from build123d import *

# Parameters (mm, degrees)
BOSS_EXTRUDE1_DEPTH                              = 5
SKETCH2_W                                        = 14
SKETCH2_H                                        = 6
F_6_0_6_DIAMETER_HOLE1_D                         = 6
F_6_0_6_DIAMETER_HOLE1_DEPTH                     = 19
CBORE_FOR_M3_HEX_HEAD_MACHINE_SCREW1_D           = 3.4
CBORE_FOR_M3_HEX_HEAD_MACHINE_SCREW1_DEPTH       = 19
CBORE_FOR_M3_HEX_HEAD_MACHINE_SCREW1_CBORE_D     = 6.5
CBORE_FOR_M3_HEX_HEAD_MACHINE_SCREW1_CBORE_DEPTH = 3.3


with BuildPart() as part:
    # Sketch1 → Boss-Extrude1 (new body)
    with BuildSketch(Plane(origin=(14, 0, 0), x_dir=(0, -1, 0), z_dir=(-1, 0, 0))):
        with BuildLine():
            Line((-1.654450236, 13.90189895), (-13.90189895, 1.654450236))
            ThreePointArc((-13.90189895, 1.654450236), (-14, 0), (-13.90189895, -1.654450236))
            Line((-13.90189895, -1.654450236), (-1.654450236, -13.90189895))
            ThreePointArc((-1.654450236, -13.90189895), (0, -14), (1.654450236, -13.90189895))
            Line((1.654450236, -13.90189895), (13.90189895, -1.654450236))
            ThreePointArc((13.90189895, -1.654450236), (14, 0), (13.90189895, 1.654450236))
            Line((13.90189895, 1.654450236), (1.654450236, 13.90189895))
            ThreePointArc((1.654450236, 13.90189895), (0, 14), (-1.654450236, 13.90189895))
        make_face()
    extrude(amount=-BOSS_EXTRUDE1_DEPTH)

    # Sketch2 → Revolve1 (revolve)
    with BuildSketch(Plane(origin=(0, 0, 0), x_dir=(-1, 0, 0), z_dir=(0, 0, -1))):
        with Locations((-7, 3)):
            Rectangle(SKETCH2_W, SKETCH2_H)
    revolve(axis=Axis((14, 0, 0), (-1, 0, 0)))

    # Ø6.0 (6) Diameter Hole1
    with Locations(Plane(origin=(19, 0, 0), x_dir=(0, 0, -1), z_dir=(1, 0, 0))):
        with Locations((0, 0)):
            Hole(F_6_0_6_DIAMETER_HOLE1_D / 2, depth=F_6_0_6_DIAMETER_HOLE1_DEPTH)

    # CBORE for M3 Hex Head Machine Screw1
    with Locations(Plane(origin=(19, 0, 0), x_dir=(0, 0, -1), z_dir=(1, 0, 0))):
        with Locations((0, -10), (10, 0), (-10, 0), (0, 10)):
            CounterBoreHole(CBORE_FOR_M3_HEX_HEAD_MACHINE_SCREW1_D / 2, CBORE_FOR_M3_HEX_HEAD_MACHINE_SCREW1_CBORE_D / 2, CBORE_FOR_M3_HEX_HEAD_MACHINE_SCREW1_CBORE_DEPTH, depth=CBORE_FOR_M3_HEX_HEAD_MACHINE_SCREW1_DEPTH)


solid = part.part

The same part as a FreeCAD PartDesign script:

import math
import FreeCAD as App
import Part
import Sketcher

V = App.Vector


def add_polygon(sketch, points):
    """Adds a closed chain of lines whose ends are joined by coincident constraints."""
    first, n = sketch.GeometryCount, len(points)
    for a, b in zip(points, points[1:] + points[:1]):
        sketch.addGeometry(Part.LineSegment(App.Vector(*a, 0), App.Vector(*b, 0)), False)
    for i in range(n):
        sketch.addConstraint(Sketcher.Constraint("Coincident", first + i, 2, first + (i + 1) % n, 1))

doc = App.newDocument("Part")
params = doc.addObject("Spreadsheet::Sheet", "Params")
for row, (alias, value) in enumerate([
    ("sketch1_radius", "14 mm"),
    ("pad1_length", "5 mm"),
    ("sketch2_width", "14 mm"),
    ("sketch2_height", "6 mm"),
    ("revolution_angle", "360 deg"),
    ("sketch3_diameter", "6 mm"),
    ("hole_diameter", "6 mm"),
    ("hole_depth", "19 mm"),
    ("sketch4_diameter", "3.4 mm"),
    ("hole2_diameter", "3.4 mm"),
    ("hole2_depth", "19 mm"),
    ("hole2_cbore_diameter", "6.5 mm"),
    ("hole2_cbore_depth", "3.3 mm"),
], start=1):
    params.set(f"A{row}", alias)
    params.set(f"B{row}", "=" + value)
    params.setAlias(f"B{row}", alias)

body = doc.addObject("PartDesign::Body", "Body")

sketch1 = body.newObject("Sketcher::SketchObject", "Sketch")
sketch1.AttachmentSupport = (doc.getObject("YZ_Plane"), [""])
sketch1.MapMode = "FlatFace"
sketch1.AttachmentOffset = App.Placement(V(0, 0, 14), App.Rotation())
sketch1.addGeometry(Part.LineSegment(V(1.7, 13.9, 0), V(13.9, 1.7, 0)), False)
sketch1.addGeometry(Part.ArcOfCircle(Part.Circle(V(0, 0, 0), V(0, 0, 1), 14), math.radians(-6.79), math.radians(6.79)), False)
sketch1.addGeometry(Part.LineSegment(V(13.9, -1.7, 0), V(1.7, -13.9, 0)), False)
sketch1.addGeometry(Part.ArcOfCircle(Part.Circle(V(0, 0, 0), V(0, 0, 1), 14), math.radians(-96.79), math.radians(-83.21)), False)
sketch1.addGeometry(Part.LineSegment(V(-1.7, -13.9, 0), V(-13.9, -1.7, 0)), False)
sketch1.addGeometry(Part.ArcOfCircle(Part.Circle(V(0, 0, 0), V(0, 0, 1), 14), math.radians(173.21), math.radians(186.79)), False)
sketch1.addGeometry(Part.LineSegment(V(-13.9, 1.7, 0), V(-1.7, 13.9, 0)), False)
sketch1.addGeometry(Part.ArcOfCircle(Part.Circle(V(0, 0, 0), V(0, 0, 1), 14), math.radians(83.21), math.radians(96.79)), False)
sketch1.addConstraint(Sketcher.Constraint("Coincident", 0, 2, 1, 2))
sketch1.addConstraint(Sketcher.Constraint("Coincident", 1, 1, 2, 1))
sketch1.addConstraint(Sketcher.Constraint("Coincident", 2, 2, 3, 2))
sketch1.addConstraint(Sketcher.Constraint("Coincident", 3, 1, 4, 1))
sketch1.addConstraint(Sketcher.Constraint("Coincident", 4, 2, 5, 2))
sketch1.addConstraint(Sketcher.Constraint("Coincident", 5, 1, 6, 1))
sketch1.addConstraint(Sketcher.Constraint("Coincident", 6, 2, 7, 2))
sketch1.addConstraint(Sketcher.Constraint("Coincident", 7, 1, 0, 1))
sketch1.addConstraint(Sketcher.Constraint("Coincident", 1, 3, -1, 1))
sketch1.addConstraint(Sketcher.Constraint("Coincident", 3, 3, -1, 1))
sketch1.addConstraint(Sketcher.Constraint("Coincident", 5, 3, -1, 1))
sketch1.addConstraint(Sketcher.Constraint("Coincident", 7, 3, -1, 1))
sketch1.addConstraint(Sketcher.Constraint("Equal", 1, 3))
sketch1.addConstraint(Sketcher.Constraint("Equal", 3, 5))
sketch1.addConstraint(Sketcher.Constraint("Equal", 5, 7))
sketch1.addConstraint(Sketcher.Constraint("Perpendicular", 0, 2))
sketch1.addConstraint(Sketcher.Constraint("Perpendicular", 2, 4))
sketch1.addConstraint(Sketcher.Constraint("Perpendicular", 4, 6))
sketch1.addConstraint(Sketcher.Constraint("Horizontal", 2, 2, 3, 1))
sketch1.addConstraint(Sketcher.Constraint("Horizontal", 1, 1, 4, 2))
sketch1.addConstraint(Sketcher.Constraint("Horizontal", 0, 2, 5, 1))
sketch1.addConstraint(Sketcher.Constraint("Vertical", 0, 2, 1, 1))
sketch1.addConstraint(Sketcher.Constraint("Radius", 1, 14.0))
sketch1.addConstraint(Sketcher.Constraint("DistanceX", -1, 1, 0, 2, 13.901899))
sketch1.setExpression("Constraints[22]", "Params.sketch1_radius")
pad1 = body.newObject("PartDesign::Pad", "Pad")
pad1.Profile = sketch1
pad1.setExpression("Length", "Params.pad1_length")

sketch2 = body.newObject("Sketcher::SketchObject", "Sketch001")
sketch2.AttachmentSupport = (doc.getObject("XY_Plane"), [""])
sketch2.MapMode = "FlatFace"
add_polygon(sketch2, [(14, 6), (14, 0), (0, 0), (0, 6)])
sketch2.addConstraint(Sketcher.Constraint("Vertical", 0))
sketch2.addConstraint(Sketcher.Constraint("Horizontal", 1))
sketch2.addConstraint(Sketcher.Constraint("Vertical", 2))
sketch2.addConstraint(Sketcher.Constraint("Horizontal", 3))
sketch2.addConstraint(Sketcher.Constraint("Coincident", 1, 2, -1, 1))
sketch2.addConstraint(Sketcher.Constraint("DistanceX", 1, 2, 1, 1, 14.0))
sketch2.addConstraint(Sketcher.Constraint("DistanceY", 0, 2, 0, 1, 6.0))
sketch2.setExpression("Constraints[9]", "Params.sketch2_width")
sketch2.setExpression("Constraints[10]", "Params.sketch2_height")
revolution = body.newObject("PartDesign::Revolution", "Revolution")
revolution.Profile = sketch2
revolution.ReferenceAxis = (sketch2, ["H_Axis"])
revolution.setExpression("Angle", "Params.revolution_angle")

sketch3 = body.newObject("Sketcher::SketchObject", "Sketch002")
sketch3.AttachmentSupport = (doc.getObject("YZ_Plane"), [""])
sketch3.MapMode = "FlatFace"
sketch3.AttachmentOffset = App.Placement(V(0, 0, 19), App.Rotation())
sketch3.addGeometry(Part.Circle(V(0, 0, 0), V(0, 0, 1), 3), False)
sketch3.addConstraint(Sketcher.Constraint("Coincident", 0, 3, -1, 1))
sketch3.addConstraint(Sketcher.Constraint("Diameter", 0, 6.0))
sketch3.setExpression("Constraints[1]", "Params.sketch3_diameter")
doc.recompute()
hole = body.newObject("PartDesign::Hole", "Hole")
hole.Profile = sketch3
hole.ThreadType = "None"
hole.setExpression("Diameter", "Params.hole_diameter")
hole.DepthType = "Dimension"
hole.setExpression("Depth", "Params.hole_depth")
hole.DrillPoint = "Flat"

sketch4 = body.newObject("Sketcher::SketchObject", "Sketch003")
sketch4.AttachmentSupport = (doc.getObject("YZ_Plane"), [""])
sketch4.MapMode = "FlatFace"
sketch4.AttachmentOffset = App.Placement(V(0, 0, 19), App.Rotation())
sketch4.addGeometry(Part.Circle(V(-10, 0, 0), V(0, 0, 1), 1.7), False)
sketch4.addGeometry(Part.Circle(V(0, -10, 0), V(0, 0, 1), 1.7), False)
sketch4.addGeometry(Part.Circle(V(0, 10, 0), V(0, 0, 1), 1.7), False)
sketch4.addGeometry(Part.Circle(V(10, 0, 0), V(0, 0, 1), 1.7), False)
sketch4.addConstraint(Sketcher.Constraint("Equal", 0, 1))
sketch4.addConstraint(Sketcher.Constraint("Equal", 1, 2))
sketch4.addConstraint(Sketcher.Constraint("Equal", 2, 3))
sketch4.addConstraint(Sketcher.Constraint("Symmetric", 1, 3, 2, 3, -1, 1))
sketch4.addConstraint(Sketcher.Constraint("Symmetric", 0, 3, 3, 3, -1, 1))
sketch4.addConstraint(Sketcher.Constraint("PointOnObject", 0, 3, -1))
sketch4.addConstraint(Sketcher.Constraint("PointOnObject", 1, 3, -2))
sketch4.addConstraint(Sketcher.Constraint("Diameter", 0, 3.4))
sketch4.addConstraint(Sketcher.Constraint("DistanceX", 0, 3, -1, 1, 10.0))
sketch4.addConstraint(Sketcher.Constraint("DistanceY", 1, 3, -1, 1, 10.0))
sketch4.setExpression("Constraints[7]", "Params.sketch4_diameter")
doc.recompute()
hole2 = body.newObject("PartDesign::Hole", "Hole001")
hole2.Profile = sketch4
hole2.ThreadType = "None"
hole2.setExpression("Diameter", "Params.hole2_diameter")
hole2.DepthType = "Dimension"
hole2.setExpression("Depth", "Params.hole2_depth")
hole2.DrillPoint = "Flat"
hole2.HoleCutType = "Counterbore"
hole2.setExpression("HoleCutDiameter", "Params.hole2_cbore_diameter")
hole2.setExpression("HoleCutDepth", "Params.hole2_cbore_depth")

doc.recompute()
